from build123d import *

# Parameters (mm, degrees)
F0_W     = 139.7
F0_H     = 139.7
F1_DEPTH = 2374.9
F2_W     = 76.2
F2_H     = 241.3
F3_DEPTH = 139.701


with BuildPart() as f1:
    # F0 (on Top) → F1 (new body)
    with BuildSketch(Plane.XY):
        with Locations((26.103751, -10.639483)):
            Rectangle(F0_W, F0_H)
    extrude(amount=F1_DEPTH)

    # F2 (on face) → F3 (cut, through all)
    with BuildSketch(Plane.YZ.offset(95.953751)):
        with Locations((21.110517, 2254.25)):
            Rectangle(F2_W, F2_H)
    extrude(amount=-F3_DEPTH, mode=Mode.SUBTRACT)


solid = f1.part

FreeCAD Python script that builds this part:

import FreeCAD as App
import Part
import Sketcher
Q = App.Units.Quantity

doc = App.newDocument("Part")
params = doc.addObject("Spreadsheet::Sheet", "Params")
for row, (alias, value) in enumerate([
    ("sketch1_width", "5.5 in"),
    ("pad1_length", "93.5 in"),
    ("sketch2_width", "3 in"),
    ("sketch2_height", "9.5 in"),
], start=1):
    params.set(f"A{row}", alias)
    params.set(f"B{row}", "=" + value)
    params.setAlias(f"B{row}", alias)

body = doc.addObject("PartDesign::Body", "Body")

# Sketch on XY plane
sketch1 = body.newObject("Sketcher::SketchObject", "Sketch")
sketch1.AttachmentSupport = (doc.getObject("XY_Plane"), [""])
sketch1.MapMode = "FlatFace"
sketch1.addGeometry(Part.LineSegment(App.Vector(-44, 59, 0), App.Vector(-44, -80, 0)), False)
sketch1.addGeometry(Part.LineSegment(App.Vector(-44, -80, 0), App.Vector(96, -80, 0)), False)
sketch1.addGeometry(Part.LineSegment(App.Vector(96, -80, 0), App.Vector(96, 59, 0)), False)
sketch1.addGeometry(Part.LineSegment(App.Vector(96, 59, 0), App.Vector(-44, 59, 0)), False)
sketch1.addConstraint(Sketcher.Constraint("Coincident", 0, 2, 1, 1))
sketch1.addConstraint(Sketcher.Constraint("Coincident", 1, 2, 2, 1))
sketch1.addConstraint(Sketcher.Constraint("Coincident", 2, 2, 3, 1))
sketch1.addConstraint(Sketcher.Constraint("Coincident", 3, 2, 0, 1))
sketch1.addConstraint(Sketcher.Constraint("Vertical", 0))
sketch1.addConstraint(Sketcher.Constraint("Horizontal", 1))
sketch1.addConstraint(Sketcher.Constraint("Vertical", 2))
sketch1.addConstraint(Sketcher.Constraint("Horizontal", 3))
sketch1.addConstraint(Sketcher.Constraint("Equal", 3, 0))
sketch1.addConstraint(Sketcher.Constraint("DistanceX", 1, 1, 1, 2, Q("5.5 in")))
sketch1.addConstraint(Sketcher.Constraint("DistanceX", 0, 2, -1, 1, 43.746249))
sketch1.addConstraint(Sketcher.Constraint("DistanceY", 0, 2, -1, 1, 80.489483))
sketch1.setExpression("Constraints[9]", "Params.sketch1_width")
pad1 = body.newObject("PartDesign::Pad", "Pad")
pad1.Profile = sketch1
pad1.setExpression("Length", "Params.pad1_length")

# Sketch on YZ plane
sketch2 = body.newObject("Sketcher::SketchObject", "Sketch001")
sketch2.AttachmentSupport = (doc.getObject("YZ_Plane"), [""])
sketch2.MapMode = "FlatFace"
sketch2.AttachmentOffset = App.Placement(App.Vector(0, 0, 95.953751), App.Rotation())
sketch2.addGeometry(Part.LineSegment(App.Vector(-17, 2375, 0), App.Vector(-17, 2134, 0)), False)
sketch2.addGeometry(Part.LineSegment(App.Vector(-17, 2134, 0), App.Vector(59, 2134, 0)), False)
sketch2.addGeometry(Part.LineSegment(App.Vector(59, 2134, 0), App.Vector(59, 2375, 0)), False)
sketch2.addGeometry(Part.LineSegment(App.Vector(59, 2375, 0), App.Vector(-17, 2375, 0)), False)
sketch2.addConstraint(Sketcher.Constraint("Coincident", 0, 2, 1, 1))
sketch2.addConstraint(Sketcher.Constraint("Coincident", 1, 2, 2, 1))
sketch2.addConstraint(Sketcher.Constraint("Coincident", 2, 2, 3, 1))
sketch2.addConstraint(Sketcher.Constraint("Coincident", 3, 2, 0, 1))
sketch2.addConstraint(Sketcher.Constraint("Vertical", 0))
sketch2.addConstraint(Sketcher.Constraint("Horizontal", 1))
sketch2.addConstraint(Sketcher.Constraint("Vertical", 2))
sketch2.addConstraint(Sketcher.Constraint("Horizontal", 3))
sketch2.addConstraint(Sketcher.Constraint("DistanceX", 1, 1, 1, 2, Q("3 in")))
sketch2.addConstraint(Sketcher.Constraint("DistanceY", 0, 2, 0, 1, Q("9.5 in")))
sketch2.addConstraint(Sketcher.Constraint("DistanceY", -1, 1, 0, 2, Q("84 in")))
sketch2.addConstraint(Sketcher.Constraint("DistanceX", 0, 2, -1, 1, 16.989483))
sketch2.setExpression("Constraints[8]", "Params.sketch2_width")
sketch2.setExpression("Constraints[9]", "Params.sketch2_height")
pocket1 = body.newObject("PartDesign::Pocket", "Pocket")
pocket1.Profile = sketch2
pocket1.Type = "ThroughAll"

doc.recompute()
